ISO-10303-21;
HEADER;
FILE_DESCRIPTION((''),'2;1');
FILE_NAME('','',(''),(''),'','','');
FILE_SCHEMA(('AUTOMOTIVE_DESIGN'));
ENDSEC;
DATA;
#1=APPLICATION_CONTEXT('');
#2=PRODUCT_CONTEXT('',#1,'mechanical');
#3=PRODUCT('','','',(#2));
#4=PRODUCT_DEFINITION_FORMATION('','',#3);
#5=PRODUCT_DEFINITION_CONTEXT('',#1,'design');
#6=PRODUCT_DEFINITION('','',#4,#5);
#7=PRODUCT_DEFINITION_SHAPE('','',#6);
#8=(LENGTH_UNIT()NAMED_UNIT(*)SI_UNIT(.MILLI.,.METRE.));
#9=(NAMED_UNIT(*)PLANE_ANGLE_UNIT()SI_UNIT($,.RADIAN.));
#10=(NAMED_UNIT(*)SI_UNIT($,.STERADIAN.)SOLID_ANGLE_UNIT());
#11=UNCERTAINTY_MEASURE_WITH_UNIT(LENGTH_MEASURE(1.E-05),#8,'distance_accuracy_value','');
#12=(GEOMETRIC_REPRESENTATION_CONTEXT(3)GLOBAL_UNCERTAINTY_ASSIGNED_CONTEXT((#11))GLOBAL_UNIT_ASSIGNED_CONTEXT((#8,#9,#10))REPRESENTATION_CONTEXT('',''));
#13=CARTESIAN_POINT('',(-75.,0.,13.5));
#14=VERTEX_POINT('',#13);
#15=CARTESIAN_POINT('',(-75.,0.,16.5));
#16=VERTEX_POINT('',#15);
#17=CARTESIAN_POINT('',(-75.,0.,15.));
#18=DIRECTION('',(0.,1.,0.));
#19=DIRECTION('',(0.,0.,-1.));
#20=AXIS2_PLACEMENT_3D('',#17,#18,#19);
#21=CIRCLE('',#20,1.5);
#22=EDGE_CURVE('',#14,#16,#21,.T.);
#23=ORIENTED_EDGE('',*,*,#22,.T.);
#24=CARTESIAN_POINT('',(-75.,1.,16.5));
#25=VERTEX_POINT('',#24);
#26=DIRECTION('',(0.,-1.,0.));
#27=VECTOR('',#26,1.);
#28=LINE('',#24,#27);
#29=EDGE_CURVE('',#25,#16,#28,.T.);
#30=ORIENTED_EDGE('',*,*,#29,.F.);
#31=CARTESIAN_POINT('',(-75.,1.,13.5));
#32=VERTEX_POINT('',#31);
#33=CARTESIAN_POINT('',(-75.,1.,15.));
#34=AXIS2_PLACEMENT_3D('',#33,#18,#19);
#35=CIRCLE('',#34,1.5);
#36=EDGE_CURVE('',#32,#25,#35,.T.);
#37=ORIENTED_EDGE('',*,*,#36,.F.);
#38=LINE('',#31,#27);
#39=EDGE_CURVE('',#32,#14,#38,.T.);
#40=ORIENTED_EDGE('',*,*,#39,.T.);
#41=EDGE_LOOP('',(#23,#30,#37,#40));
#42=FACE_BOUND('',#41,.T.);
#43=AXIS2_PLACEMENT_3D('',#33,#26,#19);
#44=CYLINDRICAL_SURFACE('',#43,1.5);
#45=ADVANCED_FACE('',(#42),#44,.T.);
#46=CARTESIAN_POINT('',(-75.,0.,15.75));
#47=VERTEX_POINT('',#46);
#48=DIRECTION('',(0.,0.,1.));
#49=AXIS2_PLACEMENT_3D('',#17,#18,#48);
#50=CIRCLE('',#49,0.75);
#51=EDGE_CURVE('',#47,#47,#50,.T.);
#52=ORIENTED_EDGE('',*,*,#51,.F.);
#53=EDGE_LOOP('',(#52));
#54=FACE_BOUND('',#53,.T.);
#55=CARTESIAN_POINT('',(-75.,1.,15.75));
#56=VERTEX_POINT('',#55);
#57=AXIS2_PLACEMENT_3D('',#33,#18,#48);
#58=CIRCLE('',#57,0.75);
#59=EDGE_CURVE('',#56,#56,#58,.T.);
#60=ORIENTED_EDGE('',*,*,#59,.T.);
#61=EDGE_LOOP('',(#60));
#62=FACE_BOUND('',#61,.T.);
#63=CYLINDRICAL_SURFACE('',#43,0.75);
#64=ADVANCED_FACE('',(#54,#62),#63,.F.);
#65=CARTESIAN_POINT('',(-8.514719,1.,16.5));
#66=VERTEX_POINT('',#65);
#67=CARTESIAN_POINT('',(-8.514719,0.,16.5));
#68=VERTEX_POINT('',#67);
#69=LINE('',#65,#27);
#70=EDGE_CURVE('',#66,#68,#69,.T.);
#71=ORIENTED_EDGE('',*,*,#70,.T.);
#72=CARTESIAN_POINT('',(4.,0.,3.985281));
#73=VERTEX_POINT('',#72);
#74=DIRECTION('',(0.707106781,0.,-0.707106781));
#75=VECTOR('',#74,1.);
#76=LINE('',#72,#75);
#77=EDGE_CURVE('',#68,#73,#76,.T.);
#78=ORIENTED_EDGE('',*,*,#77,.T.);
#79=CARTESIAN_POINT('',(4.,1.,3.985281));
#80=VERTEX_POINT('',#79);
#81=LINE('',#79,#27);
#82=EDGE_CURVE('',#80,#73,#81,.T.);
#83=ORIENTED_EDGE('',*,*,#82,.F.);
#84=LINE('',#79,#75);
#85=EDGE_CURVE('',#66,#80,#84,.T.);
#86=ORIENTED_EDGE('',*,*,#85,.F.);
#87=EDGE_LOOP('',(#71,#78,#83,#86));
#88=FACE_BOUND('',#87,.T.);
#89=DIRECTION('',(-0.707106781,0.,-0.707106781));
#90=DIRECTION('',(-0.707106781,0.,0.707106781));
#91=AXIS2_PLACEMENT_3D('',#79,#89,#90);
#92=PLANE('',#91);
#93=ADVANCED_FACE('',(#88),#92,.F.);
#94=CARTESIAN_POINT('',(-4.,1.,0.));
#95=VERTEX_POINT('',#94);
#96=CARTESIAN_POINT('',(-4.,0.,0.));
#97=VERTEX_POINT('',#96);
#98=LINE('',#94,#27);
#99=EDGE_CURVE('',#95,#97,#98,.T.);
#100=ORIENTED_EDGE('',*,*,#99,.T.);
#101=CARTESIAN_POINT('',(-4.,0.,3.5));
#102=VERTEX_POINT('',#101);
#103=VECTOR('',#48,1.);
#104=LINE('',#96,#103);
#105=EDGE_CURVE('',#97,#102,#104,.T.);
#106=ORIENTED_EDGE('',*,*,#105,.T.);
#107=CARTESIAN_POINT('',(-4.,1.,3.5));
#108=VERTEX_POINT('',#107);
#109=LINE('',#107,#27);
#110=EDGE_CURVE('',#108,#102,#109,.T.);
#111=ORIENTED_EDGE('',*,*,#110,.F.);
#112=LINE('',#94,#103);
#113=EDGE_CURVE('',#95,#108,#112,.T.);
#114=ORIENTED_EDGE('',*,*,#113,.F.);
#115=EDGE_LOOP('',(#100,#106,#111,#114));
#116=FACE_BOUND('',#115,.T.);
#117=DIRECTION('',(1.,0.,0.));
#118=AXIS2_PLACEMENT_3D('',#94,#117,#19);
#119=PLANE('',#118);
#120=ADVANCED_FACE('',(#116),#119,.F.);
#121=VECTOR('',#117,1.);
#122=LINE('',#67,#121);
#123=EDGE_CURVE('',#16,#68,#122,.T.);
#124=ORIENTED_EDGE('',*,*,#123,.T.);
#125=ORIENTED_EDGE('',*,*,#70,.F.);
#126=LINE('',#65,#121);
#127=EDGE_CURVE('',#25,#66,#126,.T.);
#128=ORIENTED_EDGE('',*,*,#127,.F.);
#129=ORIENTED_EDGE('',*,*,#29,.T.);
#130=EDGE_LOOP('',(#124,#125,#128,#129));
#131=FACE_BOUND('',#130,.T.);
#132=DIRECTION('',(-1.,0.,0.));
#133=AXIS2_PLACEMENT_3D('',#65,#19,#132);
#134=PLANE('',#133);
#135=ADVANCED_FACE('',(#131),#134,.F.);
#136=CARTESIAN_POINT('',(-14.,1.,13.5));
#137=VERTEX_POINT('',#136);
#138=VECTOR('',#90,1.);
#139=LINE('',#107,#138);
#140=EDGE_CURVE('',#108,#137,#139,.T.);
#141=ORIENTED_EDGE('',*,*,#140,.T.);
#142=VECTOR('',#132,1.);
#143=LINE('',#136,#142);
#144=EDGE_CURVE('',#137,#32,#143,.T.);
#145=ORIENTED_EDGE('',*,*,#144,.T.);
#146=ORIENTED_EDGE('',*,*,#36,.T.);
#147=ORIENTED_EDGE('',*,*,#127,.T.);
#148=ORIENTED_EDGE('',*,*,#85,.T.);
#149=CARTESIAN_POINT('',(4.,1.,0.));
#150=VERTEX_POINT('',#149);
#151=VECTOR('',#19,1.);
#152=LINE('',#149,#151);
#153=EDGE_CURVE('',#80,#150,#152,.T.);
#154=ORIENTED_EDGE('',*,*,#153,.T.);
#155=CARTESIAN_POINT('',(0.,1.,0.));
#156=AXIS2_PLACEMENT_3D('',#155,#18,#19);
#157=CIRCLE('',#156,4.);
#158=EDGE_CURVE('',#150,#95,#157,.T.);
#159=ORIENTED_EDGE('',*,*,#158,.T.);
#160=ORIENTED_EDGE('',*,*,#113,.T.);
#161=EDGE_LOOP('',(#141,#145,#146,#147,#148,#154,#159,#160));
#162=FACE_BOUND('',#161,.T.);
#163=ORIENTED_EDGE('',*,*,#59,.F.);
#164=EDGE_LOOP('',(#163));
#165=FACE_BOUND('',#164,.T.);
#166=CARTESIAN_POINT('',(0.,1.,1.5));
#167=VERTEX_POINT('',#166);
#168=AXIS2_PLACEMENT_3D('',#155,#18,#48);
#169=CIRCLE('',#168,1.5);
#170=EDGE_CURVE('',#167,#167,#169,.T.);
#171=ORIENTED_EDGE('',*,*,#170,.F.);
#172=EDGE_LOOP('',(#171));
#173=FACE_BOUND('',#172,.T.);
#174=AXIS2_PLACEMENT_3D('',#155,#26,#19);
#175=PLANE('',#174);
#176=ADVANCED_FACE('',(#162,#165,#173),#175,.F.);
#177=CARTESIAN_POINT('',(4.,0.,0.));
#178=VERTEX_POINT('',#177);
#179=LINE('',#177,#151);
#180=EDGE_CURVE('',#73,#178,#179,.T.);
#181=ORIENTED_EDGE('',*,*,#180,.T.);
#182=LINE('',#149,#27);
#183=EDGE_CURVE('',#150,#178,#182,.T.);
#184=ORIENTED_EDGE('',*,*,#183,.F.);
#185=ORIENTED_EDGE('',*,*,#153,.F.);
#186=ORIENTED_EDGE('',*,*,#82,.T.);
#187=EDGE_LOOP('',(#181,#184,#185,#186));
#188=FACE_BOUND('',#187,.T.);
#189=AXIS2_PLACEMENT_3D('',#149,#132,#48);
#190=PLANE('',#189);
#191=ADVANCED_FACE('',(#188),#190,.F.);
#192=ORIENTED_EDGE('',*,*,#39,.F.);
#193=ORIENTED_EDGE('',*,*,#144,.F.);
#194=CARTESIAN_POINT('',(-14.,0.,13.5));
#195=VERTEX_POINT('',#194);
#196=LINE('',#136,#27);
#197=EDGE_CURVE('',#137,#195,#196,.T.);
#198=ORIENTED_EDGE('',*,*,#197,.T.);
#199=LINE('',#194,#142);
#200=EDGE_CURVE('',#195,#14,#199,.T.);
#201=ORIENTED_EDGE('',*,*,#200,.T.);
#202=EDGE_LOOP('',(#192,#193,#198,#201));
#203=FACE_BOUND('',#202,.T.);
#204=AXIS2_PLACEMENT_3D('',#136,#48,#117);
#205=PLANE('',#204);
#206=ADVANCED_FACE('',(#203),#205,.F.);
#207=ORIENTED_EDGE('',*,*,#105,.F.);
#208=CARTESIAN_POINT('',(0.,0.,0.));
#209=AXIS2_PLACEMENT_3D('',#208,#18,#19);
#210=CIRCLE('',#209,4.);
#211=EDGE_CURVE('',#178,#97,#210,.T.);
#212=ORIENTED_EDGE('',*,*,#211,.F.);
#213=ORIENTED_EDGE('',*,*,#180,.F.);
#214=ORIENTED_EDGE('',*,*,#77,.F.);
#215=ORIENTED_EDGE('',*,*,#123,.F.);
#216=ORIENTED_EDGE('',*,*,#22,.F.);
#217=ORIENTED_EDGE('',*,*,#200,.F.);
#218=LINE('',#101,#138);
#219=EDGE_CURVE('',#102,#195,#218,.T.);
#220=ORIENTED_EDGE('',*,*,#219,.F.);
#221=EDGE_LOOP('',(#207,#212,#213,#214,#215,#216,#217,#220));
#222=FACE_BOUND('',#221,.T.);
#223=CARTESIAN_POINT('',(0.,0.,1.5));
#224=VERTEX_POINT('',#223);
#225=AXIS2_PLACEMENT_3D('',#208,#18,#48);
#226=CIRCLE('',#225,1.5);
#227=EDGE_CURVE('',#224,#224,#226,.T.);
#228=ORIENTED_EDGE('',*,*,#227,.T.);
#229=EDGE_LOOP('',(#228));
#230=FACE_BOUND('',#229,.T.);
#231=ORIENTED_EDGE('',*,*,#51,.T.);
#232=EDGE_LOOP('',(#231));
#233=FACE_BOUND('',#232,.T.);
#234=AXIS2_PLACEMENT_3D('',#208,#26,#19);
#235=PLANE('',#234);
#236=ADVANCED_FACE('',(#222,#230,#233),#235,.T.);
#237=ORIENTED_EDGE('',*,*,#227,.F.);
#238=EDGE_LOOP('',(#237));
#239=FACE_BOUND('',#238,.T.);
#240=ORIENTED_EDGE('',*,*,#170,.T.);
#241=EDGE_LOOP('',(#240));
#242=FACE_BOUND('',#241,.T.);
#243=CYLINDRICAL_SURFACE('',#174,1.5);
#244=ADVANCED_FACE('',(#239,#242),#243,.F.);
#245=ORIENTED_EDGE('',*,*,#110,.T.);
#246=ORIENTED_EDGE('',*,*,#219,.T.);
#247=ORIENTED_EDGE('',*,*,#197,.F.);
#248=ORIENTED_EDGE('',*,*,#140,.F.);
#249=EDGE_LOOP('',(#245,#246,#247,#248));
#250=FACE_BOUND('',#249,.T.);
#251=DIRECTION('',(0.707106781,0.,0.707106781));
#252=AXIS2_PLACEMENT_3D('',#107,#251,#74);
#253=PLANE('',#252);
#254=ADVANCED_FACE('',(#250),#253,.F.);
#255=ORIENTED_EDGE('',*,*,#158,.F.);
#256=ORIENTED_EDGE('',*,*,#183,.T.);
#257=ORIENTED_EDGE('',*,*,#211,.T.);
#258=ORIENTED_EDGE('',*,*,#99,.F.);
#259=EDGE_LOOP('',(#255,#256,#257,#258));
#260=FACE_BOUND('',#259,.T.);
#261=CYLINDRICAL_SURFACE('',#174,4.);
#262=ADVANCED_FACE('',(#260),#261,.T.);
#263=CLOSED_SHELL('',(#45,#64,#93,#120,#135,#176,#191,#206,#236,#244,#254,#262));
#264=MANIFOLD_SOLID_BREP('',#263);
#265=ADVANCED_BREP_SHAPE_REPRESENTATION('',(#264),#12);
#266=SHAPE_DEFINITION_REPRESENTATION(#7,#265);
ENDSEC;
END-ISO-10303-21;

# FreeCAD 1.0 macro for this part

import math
import FreeCAD as App
import Part
import Sketcher
Q = App.Units.Quantity

doc = App.newDocument("Part")
body = doc.addObject("PartDesign::Body", "Body")

# Sketch on XZ plane
sketch1 = body.newObject("Sketcher::SketchObject", "Sketch")
sketch1.AttachmentSupport = (doc.getObject("XZ_Plane"), [""])
sketch1.MapMode = "FlatFace"
sketch1.addGeometry([
    Part.LineSegment(App.Vector(-4, 0, 0), App.Vector(-4, 3.5, 0)),  # 0
    Part.LineSegment(App.Vector(-4, 3.5, 0), App.Vector(-14, 13.5, 0)),  # 1
    Part.LineSegment(App.Vector(-14, 13.5, 0), App.Vector(-75, 13.5, 0)),  # 2
    Part.ArcOfCircle(Part.Circle(App.Vector(-75, 15, 0), App.Vector(0, 0, 1), 1.5), math.radians(90), math.radians(270)),  # 3
    Part.LineSegment(App.Vector(-75, 16.5, 0), App.Vector(-8.514719, 16.5, 0)),  # 4
    Part.LineSegment(App.Vector(-8.514719, 16.5, 0), App.Vector(4, 3.985281, 0)),  # 5
    Part.LineSegment(App.Vector(4, 3.985281, 0), App.Vector(4, 0, 0)),  # 6
    Part.ArcOfCircle(Part.Circle(App.Vector(0, 0, 0), App.Vector(0, 0, 1), 4), math.radians(180), math.radians(360)),  # 7
    Part.Circle(App.Vector(-75, 15, 0), App.Vector(0, 0, 1), 0.75),  # 8
    Part.Circle(App.Vector(0, 0, 0), App.Vector(0, 0, 1), 1.5),  # 9
], False)
sketch1.addConstraint([
    Sketcher.Constraint("Coincident", 0, 2, 1, 1),
    Sketcher.Constraint("Coincident", 1, 2, 2, 1),
    Sketcher.Constraint("Tangent", 2, 2, 3, 2),
    Sketcher.Constraint("Tangent", 3, 1, 4, 1),
    Sketcher.Constraint("Coincident", 4, 2, 5, 1),
    Sketcher.Constraint("Coincident", 5, 2, 6, 1),
    Sketcher.Constraint("Tangent", 6, 2, 7, 2),
    Sketcher.Constraint("Tangent", 7, 1, 0, 1),
    Sketcher.Constraint("Vertical", 0),
    Sketcher.Constraint("Horizontal", 2),
    Sketcher.Constraint("Horizontal", 4),
    Sketcher.Constraint("Vertical", 6),
    Sketcher.Constraint("Coincident", 7, 3, -1, 1),
    Sketcher.Constraint("Coincident", 9, 3, -1, 1),
    Sketcher.Constraint("Coincident", 8, 3, 3, 3),
    Sketcher.Constraint("Equal", 3, 9),
    Sketcher.Constraint("Parallel", 1, 5),
    Sketcher.Constraint("Diameter", 9, 3.0),
    Sketcher.Constraint("Radius", 7, 4.0),
    Sketcher.Constraint("Diameter", 8, 1.5),
    Sketcher.Constraint("DistanceX", 2, 2, 2, 1, 61.0),
    Sketcher.Constraint("Angle", 1, Q("135 deg")),
    Sketcher.Constraint("DistanceY", 0, 1, 0, 2, 3.5),
    Sketcher.Constraint("DistanceX", 3, 3, -1, 1, 75.0),
    Sketcher.Constraint("DistanceX", 4, 1, 4, 2, 66.485281),
])
pad1 = body.newObject("PartDesign::Pad", "Pad")
pad1.Profile = sketch1
pad1.Length = 1
pad1.Reversed = True

doc.recompute()
